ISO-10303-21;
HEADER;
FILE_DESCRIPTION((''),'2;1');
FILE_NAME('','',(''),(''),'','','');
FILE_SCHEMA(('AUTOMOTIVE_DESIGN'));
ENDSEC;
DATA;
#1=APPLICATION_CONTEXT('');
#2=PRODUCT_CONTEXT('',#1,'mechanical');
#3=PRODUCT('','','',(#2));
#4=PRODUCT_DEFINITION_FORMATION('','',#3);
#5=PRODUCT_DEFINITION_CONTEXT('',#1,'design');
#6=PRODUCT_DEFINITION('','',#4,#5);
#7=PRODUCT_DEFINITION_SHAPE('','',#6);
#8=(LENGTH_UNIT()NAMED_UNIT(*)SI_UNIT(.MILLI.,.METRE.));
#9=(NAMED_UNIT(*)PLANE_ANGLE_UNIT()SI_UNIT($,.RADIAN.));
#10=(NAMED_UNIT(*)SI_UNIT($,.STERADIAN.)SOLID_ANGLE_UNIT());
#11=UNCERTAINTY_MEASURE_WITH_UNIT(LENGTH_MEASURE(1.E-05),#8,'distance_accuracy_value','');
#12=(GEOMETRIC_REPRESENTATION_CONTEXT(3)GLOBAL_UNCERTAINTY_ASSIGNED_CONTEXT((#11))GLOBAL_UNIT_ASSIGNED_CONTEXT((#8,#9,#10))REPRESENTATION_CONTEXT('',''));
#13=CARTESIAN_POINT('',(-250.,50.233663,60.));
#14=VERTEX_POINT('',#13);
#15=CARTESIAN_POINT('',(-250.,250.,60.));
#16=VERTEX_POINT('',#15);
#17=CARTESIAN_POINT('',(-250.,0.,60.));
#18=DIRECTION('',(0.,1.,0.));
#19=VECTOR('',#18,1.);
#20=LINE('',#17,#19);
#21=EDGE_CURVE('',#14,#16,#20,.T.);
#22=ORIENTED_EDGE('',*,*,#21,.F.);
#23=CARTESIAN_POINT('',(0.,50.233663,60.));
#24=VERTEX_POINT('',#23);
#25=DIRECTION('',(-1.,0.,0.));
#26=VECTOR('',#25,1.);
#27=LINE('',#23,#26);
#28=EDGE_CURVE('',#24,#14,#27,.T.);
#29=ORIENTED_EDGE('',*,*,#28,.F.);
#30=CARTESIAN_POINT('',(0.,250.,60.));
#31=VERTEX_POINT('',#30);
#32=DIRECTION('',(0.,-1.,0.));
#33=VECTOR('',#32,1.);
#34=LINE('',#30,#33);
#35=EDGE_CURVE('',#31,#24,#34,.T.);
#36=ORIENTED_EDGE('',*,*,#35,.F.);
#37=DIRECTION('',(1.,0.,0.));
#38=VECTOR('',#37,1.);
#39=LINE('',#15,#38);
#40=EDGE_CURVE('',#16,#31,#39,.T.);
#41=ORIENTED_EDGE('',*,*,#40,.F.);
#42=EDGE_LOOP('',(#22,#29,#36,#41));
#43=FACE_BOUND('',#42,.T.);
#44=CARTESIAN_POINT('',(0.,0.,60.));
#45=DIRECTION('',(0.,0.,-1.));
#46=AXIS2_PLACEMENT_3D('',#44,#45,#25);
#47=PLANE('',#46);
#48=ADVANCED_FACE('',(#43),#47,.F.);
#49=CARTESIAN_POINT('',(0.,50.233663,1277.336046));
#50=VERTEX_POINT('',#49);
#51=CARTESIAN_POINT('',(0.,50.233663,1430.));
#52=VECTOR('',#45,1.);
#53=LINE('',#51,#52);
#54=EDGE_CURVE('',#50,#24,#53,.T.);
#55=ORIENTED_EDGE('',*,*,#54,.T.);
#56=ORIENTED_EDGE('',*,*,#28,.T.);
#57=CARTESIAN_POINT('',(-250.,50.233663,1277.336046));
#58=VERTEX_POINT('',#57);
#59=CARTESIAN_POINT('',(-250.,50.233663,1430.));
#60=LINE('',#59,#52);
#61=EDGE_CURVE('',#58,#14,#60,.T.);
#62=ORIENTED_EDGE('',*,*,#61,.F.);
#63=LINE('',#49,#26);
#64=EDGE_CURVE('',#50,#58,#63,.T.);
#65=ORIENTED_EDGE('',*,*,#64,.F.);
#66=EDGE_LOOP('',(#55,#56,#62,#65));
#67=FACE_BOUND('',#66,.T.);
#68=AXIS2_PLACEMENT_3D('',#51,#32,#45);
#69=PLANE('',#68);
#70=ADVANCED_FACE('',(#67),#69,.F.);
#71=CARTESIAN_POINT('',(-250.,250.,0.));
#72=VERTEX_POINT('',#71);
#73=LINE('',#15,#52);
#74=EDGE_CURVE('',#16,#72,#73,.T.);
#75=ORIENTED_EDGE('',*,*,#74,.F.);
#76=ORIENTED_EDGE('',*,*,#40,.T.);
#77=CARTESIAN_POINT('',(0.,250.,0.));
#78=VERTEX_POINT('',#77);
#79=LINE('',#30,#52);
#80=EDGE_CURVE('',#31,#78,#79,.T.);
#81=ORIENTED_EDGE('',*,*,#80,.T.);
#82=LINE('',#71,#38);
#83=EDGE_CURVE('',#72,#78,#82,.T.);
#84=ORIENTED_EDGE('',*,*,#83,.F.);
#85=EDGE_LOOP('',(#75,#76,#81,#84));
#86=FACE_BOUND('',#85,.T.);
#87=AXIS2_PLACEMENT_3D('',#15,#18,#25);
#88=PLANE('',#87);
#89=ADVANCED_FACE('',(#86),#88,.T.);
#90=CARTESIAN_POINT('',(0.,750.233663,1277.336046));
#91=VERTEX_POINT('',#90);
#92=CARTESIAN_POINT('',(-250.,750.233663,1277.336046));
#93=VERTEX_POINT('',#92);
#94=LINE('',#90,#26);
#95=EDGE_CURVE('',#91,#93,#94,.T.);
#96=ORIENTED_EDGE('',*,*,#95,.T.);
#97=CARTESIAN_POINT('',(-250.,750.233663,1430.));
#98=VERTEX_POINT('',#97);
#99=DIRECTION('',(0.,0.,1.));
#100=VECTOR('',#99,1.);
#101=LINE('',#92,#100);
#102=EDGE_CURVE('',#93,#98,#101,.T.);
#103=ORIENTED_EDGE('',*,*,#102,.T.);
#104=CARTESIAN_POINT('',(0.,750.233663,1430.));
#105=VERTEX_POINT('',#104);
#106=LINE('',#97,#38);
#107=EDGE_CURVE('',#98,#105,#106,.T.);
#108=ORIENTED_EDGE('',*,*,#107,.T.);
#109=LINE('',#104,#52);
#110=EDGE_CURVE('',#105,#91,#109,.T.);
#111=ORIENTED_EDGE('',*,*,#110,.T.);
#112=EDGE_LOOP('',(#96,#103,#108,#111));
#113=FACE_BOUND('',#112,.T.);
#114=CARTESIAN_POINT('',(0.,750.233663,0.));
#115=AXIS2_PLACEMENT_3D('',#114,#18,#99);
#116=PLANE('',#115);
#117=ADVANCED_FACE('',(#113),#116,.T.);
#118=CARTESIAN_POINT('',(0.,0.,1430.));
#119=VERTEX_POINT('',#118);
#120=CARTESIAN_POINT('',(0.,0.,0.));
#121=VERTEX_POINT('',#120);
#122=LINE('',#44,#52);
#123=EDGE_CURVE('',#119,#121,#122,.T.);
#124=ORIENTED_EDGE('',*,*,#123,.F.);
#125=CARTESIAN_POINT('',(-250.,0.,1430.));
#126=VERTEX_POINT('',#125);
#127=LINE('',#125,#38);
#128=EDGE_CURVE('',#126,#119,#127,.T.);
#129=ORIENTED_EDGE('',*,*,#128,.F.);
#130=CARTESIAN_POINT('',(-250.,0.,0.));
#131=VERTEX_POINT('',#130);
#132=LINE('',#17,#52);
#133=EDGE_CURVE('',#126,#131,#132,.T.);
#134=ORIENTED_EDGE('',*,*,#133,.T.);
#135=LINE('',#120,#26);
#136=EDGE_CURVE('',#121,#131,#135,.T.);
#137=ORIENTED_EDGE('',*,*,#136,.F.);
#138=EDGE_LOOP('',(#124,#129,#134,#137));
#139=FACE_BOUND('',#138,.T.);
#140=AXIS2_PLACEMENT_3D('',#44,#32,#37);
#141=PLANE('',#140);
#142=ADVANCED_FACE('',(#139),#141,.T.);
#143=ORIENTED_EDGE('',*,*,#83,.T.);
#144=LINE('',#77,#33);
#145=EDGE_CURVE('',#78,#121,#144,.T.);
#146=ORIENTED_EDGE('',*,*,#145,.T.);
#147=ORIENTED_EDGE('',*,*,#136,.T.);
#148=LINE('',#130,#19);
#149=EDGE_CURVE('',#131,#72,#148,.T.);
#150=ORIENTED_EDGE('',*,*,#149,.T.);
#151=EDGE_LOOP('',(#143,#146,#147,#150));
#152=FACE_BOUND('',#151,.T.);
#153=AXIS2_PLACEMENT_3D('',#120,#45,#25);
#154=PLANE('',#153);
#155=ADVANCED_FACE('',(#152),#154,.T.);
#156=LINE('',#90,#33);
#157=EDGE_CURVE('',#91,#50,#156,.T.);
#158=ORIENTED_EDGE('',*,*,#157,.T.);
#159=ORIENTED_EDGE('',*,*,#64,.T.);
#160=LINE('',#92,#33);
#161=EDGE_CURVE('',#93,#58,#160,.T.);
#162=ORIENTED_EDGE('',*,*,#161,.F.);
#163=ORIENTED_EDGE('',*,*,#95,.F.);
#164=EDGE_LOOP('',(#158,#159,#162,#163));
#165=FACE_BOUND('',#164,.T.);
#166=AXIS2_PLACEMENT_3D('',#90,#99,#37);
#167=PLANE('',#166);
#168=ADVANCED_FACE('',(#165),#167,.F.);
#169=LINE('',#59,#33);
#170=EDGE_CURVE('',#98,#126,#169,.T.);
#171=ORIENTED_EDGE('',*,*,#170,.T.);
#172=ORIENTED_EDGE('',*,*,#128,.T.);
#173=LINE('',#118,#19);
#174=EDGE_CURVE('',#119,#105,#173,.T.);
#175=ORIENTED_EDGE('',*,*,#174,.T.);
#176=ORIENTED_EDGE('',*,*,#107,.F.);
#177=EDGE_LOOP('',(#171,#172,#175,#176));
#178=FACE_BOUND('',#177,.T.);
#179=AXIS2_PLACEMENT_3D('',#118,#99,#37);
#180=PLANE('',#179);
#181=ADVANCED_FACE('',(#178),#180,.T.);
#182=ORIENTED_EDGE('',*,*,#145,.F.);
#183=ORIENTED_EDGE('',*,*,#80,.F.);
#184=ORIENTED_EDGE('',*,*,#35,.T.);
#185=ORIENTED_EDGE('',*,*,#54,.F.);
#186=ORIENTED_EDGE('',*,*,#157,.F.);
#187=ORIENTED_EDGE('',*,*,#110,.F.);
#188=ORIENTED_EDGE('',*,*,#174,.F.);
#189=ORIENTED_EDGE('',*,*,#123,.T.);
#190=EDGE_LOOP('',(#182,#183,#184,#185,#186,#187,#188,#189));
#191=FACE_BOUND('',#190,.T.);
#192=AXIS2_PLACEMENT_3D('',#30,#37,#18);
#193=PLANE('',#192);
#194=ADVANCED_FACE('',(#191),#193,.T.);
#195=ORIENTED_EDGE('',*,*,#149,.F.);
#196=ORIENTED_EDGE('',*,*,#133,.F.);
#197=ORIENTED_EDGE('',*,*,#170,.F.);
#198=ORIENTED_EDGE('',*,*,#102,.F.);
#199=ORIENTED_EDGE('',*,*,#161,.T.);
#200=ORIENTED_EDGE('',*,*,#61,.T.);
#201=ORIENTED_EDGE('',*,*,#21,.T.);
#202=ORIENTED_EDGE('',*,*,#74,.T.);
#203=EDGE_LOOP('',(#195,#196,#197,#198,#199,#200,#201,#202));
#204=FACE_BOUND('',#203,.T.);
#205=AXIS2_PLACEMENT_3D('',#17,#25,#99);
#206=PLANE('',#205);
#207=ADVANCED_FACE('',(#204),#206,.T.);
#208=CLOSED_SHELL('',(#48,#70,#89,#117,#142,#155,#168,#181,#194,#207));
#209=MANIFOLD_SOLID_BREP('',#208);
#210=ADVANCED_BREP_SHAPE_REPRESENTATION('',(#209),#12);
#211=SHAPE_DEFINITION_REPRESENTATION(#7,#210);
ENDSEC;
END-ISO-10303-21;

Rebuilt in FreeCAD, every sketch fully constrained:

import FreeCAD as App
import Part
import Sketcher
Q = App.Units.Quantity


def add_polygon(sketch, points):
    """Adds a closed chain of lines whose ends are joined by coincident constraints."""
    first, n = sketch.GeometryCount, len(points)
    for a, b in zip(points, points[1:] + points[:1]):
        sketch.addGeometry(Part.LineSegment(App.Vector(*a, 0), App.Vector(*b, 0)), False)
    for i in range(n):
        sketch.addConstraint(Sketcher.Constraint("Coincident", first + i, 2, first + (i + 1) % n, 1))

doc = App.newDocument("Part")
body = doc.addObject("PartDesign::Body", "Body")

sketch1 = body.newObject("Sketcher::SketchObject", "Sketch")
sketch1.AttachmentSupport = (doc.getObject("XY_Plane"), [""])
sketch1.MapMode = "FlatFace"
add_polygon(sketch1, [(-250, 250), (-250, 0), (0, 0), (0, 250)])
sketch1.addConstraint([
    Sketcher.Constraint("Vertical", 0),
    Sketcher.Constraint("Horizontal", 1),
    Sketcher.Constraint("Vertical", 2),
    Sketcher.Constraint("Horizontal", 3),
    Sketcher.Constraint("Coincident", 1, 2, -1, 1),
    Sketcher.Constraint("Equal", 3, 0),
    Sketcher.Constraint("DistanceX", 1, 1, 1, 2, Q("250 mm")),
])
pad1 = body.newObject("PartDesign::Pad", "Pad")
pad1.Profile = sketch1
pad1.Length = 60

sketch2 = body.newObject("Sketcher::SketchObject", "Sketch001")
sketch2.AttachmentSupport = (doc.getObject("XY_Plane"), [""])
sketch2.MapMode = "FlatFace"
sketch2.AttachmentOffset = App.Placement(App.Vector(0, 0, 60), App.Rotation())
add_polygon(sketch2, [(-250, 50), (-250, 0), (0, 0), (0, 50)])
sketch2.addConstraint([
    Sketcher.Constraint("Vertical", 0),
    Sketcher.Constraint("Horizontal", 1),
    Sketcher.Constraint("Vertical", 2),
    Sketcher.Constraint("Horizontal", 3),
    Sketcher.Constraint("Coincident", 1, 2, -1, 1),
    Sketcher.Constraint("DistanceX", 1, 1, 1, 2, Q("250 mm")),
    Sketcher.Constraint("DistanceY", 0, 2, 0, 1, Q("50.233663 mm")),
])
pad2 = body.newObject("PartDesign::Pad", "Pad001")
pad2.Profile = sketch2
pad2.Length = 1370

sketch3 = body.newObject("Sketcher::SketchObject", "Sketch002")
sketch3.AttachmentSupport = (doc.getObject("XZ_Plane"), [""])
sketch3.MapMode = "FlatFace"
sketch3.AttachmentOffset = App.Placement(App.Vector(0, 0, -50.233663), App.Rotation())
add_polygon(sketch3, [(-250, 1277), (-250, 1430), (0, 1430), (0, 1277)])
sketch3.addConstraint([
    Sketcher.Constraint("Vertical", 0),
    Sketcher.Constraint("Horizontal", 1),
    Sketcher.Constraint("Vertical", 2),
    Sketcher.Constraint("Horizontal", 3),
    Sketcher.Constraint("PointOnObject", 1, 2, -2),
    Sketcher.Constraint("DistanceX", 1, 1, 1, 2, Q("250 mm")),
    Sketcher.Constraint("DistanceY", -1, 1, 0, 2, Q("1430 mm")),
    Sketcher.Constraint("DistanceY", 0, 1, 0, 2, Q("152.663954 mm")),
])
pad3 = body.newObject("PartDesign::Pad", "Pad002")
pad3.Profile = sketch3
pad3.Length = 700
pad3.Reversed = True

doc.recompute()
